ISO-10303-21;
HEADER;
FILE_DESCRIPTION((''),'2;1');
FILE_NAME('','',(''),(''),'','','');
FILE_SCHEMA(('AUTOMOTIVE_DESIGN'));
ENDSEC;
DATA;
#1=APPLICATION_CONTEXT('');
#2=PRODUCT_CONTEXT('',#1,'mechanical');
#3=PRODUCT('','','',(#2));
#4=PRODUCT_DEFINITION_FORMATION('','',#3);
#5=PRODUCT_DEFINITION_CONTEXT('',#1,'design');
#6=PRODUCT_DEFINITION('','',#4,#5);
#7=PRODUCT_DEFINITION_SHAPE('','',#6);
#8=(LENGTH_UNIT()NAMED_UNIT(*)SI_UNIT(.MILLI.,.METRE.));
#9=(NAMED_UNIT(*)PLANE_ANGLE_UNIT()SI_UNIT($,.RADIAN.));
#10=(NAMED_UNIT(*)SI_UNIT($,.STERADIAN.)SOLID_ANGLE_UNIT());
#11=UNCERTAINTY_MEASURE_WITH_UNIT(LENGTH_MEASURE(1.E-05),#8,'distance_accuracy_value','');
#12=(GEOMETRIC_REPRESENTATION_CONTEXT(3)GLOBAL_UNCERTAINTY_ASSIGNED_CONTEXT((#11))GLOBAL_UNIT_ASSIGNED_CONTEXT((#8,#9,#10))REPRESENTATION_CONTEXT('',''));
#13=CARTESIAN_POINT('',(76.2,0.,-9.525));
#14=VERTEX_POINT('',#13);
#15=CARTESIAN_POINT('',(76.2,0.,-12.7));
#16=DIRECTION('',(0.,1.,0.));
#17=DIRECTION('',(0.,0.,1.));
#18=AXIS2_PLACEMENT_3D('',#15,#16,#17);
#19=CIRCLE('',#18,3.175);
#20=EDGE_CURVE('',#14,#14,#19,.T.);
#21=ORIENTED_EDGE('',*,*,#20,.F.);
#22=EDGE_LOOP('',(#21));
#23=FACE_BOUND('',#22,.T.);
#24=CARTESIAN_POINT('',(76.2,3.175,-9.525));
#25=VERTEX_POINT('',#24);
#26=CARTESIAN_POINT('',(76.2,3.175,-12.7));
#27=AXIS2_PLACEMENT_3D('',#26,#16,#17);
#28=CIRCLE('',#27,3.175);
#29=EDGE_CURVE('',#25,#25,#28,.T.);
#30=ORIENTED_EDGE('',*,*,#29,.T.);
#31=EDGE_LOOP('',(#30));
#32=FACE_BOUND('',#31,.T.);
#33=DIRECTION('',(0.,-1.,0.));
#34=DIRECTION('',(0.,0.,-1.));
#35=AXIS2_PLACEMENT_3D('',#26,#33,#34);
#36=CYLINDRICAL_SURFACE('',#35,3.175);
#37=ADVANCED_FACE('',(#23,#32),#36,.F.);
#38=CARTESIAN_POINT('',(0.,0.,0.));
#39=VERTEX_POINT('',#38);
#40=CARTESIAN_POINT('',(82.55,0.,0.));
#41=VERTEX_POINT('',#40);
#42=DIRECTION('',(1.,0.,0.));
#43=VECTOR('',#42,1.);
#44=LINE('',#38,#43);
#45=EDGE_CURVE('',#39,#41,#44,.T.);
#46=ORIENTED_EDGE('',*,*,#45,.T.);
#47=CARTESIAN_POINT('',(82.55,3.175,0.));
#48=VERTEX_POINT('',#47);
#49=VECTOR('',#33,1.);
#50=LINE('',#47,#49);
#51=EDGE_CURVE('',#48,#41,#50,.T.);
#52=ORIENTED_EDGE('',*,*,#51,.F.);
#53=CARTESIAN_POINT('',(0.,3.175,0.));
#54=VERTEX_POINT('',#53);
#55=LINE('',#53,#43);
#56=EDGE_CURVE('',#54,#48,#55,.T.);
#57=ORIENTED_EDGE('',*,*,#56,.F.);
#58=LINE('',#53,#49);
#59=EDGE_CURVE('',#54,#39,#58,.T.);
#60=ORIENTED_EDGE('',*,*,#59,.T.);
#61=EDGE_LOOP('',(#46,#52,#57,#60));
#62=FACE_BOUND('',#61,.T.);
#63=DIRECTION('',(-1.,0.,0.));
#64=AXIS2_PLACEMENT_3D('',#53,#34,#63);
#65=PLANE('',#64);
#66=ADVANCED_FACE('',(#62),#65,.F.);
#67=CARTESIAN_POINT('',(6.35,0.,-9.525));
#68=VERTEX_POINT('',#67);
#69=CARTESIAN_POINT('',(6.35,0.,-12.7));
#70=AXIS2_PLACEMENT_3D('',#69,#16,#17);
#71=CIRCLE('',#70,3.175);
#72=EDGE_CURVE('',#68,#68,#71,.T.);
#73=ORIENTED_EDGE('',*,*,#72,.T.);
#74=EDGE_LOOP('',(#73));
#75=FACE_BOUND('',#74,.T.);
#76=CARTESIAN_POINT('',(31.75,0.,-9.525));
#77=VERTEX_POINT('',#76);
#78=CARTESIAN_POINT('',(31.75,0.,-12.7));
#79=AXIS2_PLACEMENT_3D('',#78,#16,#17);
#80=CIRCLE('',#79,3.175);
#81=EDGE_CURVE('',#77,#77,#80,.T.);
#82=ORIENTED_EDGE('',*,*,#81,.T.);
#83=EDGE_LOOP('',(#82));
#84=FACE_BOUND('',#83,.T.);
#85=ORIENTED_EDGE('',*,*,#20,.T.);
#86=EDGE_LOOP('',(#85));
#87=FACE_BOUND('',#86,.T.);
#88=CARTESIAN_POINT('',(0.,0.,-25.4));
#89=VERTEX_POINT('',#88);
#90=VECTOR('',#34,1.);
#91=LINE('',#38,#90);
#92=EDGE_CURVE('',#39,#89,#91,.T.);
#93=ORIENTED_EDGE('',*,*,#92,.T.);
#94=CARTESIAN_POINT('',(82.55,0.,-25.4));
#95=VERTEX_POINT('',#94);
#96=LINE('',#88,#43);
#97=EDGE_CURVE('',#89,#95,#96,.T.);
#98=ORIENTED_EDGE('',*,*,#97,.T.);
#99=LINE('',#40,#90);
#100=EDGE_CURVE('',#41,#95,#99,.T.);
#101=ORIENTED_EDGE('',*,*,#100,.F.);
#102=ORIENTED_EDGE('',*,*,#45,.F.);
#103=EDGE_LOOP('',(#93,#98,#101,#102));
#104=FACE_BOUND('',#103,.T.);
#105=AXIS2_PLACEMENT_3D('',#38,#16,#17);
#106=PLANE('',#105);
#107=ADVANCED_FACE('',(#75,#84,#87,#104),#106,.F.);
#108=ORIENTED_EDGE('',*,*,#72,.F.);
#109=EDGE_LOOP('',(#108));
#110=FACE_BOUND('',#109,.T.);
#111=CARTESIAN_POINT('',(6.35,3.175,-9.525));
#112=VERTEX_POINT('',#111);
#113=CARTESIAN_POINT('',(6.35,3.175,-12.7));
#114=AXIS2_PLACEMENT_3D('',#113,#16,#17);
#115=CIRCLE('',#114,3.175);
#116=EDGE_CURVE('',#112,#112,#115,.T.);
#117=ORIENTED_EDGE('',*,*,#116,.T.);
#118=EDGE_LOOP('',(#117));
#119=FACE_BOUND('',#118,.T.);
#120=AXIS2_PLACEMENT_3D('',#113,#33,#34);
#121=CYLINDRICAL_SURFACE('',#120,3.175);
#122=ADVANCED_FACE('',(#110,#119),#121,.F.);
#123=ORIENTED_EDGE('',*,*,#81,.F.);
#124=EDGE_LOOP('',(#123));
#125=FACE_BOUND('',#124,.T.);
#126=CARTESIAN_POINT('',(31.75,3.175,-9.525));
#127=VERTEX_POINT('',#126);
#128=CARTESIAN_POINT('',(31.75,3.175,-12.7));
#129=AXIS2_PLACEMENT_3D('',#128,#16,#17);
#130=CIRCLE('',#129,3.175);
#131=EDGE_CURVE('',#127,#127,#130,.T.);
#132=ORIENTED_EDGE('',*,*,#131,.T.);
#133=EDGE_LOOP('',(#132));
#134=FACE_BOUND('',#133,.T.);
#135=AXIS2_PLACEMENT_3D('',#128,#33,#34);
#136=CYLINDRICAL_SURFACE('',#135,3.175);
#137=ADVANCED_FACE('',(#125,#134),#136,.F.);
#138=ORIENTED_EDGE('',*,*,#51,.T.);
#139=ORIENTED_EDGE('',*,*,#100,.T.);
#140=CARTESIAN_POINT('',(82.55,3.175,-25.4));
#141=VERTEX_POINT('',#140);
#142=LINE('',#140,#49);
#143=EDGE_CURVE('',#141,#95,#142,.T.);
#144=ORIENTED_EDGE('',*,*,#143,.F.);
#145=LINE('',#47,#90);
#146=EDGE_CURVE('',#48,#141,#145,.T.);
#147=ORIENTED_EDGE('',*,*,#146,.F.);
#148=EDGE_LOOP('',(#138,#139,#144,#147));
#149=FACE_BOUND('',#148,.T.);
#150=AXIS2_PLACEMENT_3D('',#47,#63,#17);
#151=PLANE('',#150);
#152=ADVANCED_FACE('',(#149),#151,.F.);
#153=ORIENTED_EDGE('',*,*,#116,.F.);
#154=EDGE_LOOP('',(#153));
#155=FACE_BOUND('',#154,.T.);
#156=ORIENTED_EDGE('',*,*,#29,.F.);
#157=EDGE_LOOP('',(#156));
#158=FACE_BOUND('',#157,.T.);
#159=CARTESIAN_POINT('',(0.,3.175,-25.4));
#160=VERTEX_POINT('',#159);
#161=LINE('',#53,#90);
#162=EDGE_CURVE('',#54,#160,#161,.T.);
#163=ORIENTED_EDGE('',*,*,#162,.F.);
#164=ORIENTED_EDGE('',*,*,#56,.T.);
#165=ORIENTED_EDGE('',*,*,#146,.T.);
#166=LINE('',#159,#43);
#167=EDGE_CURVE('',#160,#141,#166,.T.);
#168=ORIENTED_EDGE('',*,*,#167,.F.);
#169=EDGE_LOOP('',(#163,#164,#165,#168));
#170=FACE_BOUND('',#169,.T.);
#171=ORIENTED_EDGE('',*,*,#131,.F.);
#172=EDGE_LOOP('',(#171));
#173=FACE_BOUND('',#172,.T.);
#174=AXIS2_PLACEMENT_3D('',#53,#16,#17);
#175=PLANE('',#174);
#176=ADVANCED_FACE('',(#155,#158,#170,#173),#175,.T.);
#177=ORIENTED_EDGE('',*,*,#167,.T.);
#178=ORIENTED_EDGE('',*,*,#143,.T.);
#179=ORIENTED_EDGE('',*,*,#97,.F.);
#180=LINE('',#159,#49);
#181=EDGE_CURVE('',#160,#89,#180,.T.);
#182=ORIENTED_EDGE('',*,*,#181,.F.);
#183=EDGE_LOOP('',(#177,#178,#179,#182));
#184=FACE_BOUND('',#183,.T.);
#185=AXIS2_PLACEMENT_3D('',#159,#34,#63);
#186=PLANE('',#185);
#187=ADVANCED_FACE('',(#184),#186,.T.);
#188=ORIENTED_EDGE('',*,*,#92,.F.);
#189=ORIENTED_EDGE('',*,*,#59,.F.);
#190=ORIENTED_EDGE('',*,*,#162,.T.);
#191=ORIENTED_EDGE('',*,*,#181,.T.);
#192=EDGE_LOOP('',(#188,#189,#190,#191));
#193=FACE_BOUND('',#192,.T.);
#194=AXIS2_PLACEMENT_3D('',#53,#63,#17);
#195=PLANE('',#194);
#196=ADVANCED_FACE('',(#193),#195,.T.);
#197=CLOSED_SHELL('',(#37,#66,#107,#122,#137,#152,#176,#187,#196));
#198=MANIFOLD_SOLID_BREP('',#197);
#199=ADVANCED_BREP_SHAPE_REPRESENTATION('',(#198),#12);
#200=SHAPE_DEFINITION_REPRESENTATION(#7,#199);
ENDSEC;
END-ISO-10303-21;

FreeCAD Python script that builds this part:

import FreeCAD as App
import Part
import Sketcher
Q = App.Units.Quantity


def add_polygon(sketch, points):
    """Adds a closed chain of lines whose ends are joined by coincident constraints."""
    first, n = sketch.GeometryCount, len(points)
    for a, b in zip(points, points[1:] + points[:1]):
        sketch.addGeometry(Part.LineSegment(App.Vector(*a, 0), App.Vector(*b, 0)), False)
    for i in range(n):
        sketch.addConstraint(Sketcher.Constraint("Coincident", first + i, 2, first + (i + 1) % n, 1))

doc = App.newDocument("Part")
body = doc.addObject("PartDesign::Body", "Body")

# Sketch on XZ plane
sketch1 = body.newObject("Sketcher::SketchObject", "Sketch")
sketch1.AttachmentSupport = (doc.getObject("XZ_Plane"), [""])
sketch1.MapMode = "FlatFace"
add_polygon(sketch1, [(0, -25.4), (0, 0), (82.55, 0), (82.55, -25.4)])  # lines 0-3
sketch1.addGeometry(Part.Circle(App.Vector(6.35, -12.7, 0), App.Vector(0, 0, 1), 3.175), False)  # 4
sketch1.addGeometry(Part.Circle(App.Vector(31.75, -12.7, 0), App.Vector(0, 0, 1), 3.175), False)  # 5
sketch1.addGeometry(Part.Circle(App.Vector(76.2, -12.7, 0), App.Vector(0, 0, 1), 3.175), False)  # 6
sketch1.addConstraint([
    Sketcher.Constraint("Vertical", 0),
    Sketcher.Constraint("Horizontal", 1),
    Sketcher.Constraint("Vertical", 2),
    Sketcher.Constraint("Horizontal", 3),
    Sketcher.Constraint("Coincident", 0, 2, -1, 1),
    Sketcher.Constraint("Equal", 4, 5),
    Sketcher.Constraint("Equal", 5, 6),
    Sketcher.Constraint("Horizontal", 4, 3, 5, 3),
    Sketcher.Constraint("Horizontal", 5, 3, 6, 3),
    Sketcher.Constraint("Diameter", 4, Q("0.25 in")),
    Sketcher.Constraint("DistanceY", 0, 1, 0, 2, Q("1 in")),
    Sketcher.Constraint("DistanceX", -1, 1, 6, 3, Q("3 in")),
    Sketcher.Constraint("DistanceX", 4, 3, 5, 3, Q("1 in")),
    Sketcher.Constraint("DistanceX", 5, 3, 1, 2, Q("2 in")),
    Sketcher.Constraint("DistanceX", 1, 1, 1, 2, Q("3.25 in")),
    Sketcher.Constraint("DistanceY", 4, 3, -1, 1, Q("0.5 in")),
])
pad1 = body.newObject("PartDesign::Pad", "Pad")
pad1.Profile = sketch1
pad1.Length = Q("0.125 in")
pad1.Reversed = True

doc.recompute()
